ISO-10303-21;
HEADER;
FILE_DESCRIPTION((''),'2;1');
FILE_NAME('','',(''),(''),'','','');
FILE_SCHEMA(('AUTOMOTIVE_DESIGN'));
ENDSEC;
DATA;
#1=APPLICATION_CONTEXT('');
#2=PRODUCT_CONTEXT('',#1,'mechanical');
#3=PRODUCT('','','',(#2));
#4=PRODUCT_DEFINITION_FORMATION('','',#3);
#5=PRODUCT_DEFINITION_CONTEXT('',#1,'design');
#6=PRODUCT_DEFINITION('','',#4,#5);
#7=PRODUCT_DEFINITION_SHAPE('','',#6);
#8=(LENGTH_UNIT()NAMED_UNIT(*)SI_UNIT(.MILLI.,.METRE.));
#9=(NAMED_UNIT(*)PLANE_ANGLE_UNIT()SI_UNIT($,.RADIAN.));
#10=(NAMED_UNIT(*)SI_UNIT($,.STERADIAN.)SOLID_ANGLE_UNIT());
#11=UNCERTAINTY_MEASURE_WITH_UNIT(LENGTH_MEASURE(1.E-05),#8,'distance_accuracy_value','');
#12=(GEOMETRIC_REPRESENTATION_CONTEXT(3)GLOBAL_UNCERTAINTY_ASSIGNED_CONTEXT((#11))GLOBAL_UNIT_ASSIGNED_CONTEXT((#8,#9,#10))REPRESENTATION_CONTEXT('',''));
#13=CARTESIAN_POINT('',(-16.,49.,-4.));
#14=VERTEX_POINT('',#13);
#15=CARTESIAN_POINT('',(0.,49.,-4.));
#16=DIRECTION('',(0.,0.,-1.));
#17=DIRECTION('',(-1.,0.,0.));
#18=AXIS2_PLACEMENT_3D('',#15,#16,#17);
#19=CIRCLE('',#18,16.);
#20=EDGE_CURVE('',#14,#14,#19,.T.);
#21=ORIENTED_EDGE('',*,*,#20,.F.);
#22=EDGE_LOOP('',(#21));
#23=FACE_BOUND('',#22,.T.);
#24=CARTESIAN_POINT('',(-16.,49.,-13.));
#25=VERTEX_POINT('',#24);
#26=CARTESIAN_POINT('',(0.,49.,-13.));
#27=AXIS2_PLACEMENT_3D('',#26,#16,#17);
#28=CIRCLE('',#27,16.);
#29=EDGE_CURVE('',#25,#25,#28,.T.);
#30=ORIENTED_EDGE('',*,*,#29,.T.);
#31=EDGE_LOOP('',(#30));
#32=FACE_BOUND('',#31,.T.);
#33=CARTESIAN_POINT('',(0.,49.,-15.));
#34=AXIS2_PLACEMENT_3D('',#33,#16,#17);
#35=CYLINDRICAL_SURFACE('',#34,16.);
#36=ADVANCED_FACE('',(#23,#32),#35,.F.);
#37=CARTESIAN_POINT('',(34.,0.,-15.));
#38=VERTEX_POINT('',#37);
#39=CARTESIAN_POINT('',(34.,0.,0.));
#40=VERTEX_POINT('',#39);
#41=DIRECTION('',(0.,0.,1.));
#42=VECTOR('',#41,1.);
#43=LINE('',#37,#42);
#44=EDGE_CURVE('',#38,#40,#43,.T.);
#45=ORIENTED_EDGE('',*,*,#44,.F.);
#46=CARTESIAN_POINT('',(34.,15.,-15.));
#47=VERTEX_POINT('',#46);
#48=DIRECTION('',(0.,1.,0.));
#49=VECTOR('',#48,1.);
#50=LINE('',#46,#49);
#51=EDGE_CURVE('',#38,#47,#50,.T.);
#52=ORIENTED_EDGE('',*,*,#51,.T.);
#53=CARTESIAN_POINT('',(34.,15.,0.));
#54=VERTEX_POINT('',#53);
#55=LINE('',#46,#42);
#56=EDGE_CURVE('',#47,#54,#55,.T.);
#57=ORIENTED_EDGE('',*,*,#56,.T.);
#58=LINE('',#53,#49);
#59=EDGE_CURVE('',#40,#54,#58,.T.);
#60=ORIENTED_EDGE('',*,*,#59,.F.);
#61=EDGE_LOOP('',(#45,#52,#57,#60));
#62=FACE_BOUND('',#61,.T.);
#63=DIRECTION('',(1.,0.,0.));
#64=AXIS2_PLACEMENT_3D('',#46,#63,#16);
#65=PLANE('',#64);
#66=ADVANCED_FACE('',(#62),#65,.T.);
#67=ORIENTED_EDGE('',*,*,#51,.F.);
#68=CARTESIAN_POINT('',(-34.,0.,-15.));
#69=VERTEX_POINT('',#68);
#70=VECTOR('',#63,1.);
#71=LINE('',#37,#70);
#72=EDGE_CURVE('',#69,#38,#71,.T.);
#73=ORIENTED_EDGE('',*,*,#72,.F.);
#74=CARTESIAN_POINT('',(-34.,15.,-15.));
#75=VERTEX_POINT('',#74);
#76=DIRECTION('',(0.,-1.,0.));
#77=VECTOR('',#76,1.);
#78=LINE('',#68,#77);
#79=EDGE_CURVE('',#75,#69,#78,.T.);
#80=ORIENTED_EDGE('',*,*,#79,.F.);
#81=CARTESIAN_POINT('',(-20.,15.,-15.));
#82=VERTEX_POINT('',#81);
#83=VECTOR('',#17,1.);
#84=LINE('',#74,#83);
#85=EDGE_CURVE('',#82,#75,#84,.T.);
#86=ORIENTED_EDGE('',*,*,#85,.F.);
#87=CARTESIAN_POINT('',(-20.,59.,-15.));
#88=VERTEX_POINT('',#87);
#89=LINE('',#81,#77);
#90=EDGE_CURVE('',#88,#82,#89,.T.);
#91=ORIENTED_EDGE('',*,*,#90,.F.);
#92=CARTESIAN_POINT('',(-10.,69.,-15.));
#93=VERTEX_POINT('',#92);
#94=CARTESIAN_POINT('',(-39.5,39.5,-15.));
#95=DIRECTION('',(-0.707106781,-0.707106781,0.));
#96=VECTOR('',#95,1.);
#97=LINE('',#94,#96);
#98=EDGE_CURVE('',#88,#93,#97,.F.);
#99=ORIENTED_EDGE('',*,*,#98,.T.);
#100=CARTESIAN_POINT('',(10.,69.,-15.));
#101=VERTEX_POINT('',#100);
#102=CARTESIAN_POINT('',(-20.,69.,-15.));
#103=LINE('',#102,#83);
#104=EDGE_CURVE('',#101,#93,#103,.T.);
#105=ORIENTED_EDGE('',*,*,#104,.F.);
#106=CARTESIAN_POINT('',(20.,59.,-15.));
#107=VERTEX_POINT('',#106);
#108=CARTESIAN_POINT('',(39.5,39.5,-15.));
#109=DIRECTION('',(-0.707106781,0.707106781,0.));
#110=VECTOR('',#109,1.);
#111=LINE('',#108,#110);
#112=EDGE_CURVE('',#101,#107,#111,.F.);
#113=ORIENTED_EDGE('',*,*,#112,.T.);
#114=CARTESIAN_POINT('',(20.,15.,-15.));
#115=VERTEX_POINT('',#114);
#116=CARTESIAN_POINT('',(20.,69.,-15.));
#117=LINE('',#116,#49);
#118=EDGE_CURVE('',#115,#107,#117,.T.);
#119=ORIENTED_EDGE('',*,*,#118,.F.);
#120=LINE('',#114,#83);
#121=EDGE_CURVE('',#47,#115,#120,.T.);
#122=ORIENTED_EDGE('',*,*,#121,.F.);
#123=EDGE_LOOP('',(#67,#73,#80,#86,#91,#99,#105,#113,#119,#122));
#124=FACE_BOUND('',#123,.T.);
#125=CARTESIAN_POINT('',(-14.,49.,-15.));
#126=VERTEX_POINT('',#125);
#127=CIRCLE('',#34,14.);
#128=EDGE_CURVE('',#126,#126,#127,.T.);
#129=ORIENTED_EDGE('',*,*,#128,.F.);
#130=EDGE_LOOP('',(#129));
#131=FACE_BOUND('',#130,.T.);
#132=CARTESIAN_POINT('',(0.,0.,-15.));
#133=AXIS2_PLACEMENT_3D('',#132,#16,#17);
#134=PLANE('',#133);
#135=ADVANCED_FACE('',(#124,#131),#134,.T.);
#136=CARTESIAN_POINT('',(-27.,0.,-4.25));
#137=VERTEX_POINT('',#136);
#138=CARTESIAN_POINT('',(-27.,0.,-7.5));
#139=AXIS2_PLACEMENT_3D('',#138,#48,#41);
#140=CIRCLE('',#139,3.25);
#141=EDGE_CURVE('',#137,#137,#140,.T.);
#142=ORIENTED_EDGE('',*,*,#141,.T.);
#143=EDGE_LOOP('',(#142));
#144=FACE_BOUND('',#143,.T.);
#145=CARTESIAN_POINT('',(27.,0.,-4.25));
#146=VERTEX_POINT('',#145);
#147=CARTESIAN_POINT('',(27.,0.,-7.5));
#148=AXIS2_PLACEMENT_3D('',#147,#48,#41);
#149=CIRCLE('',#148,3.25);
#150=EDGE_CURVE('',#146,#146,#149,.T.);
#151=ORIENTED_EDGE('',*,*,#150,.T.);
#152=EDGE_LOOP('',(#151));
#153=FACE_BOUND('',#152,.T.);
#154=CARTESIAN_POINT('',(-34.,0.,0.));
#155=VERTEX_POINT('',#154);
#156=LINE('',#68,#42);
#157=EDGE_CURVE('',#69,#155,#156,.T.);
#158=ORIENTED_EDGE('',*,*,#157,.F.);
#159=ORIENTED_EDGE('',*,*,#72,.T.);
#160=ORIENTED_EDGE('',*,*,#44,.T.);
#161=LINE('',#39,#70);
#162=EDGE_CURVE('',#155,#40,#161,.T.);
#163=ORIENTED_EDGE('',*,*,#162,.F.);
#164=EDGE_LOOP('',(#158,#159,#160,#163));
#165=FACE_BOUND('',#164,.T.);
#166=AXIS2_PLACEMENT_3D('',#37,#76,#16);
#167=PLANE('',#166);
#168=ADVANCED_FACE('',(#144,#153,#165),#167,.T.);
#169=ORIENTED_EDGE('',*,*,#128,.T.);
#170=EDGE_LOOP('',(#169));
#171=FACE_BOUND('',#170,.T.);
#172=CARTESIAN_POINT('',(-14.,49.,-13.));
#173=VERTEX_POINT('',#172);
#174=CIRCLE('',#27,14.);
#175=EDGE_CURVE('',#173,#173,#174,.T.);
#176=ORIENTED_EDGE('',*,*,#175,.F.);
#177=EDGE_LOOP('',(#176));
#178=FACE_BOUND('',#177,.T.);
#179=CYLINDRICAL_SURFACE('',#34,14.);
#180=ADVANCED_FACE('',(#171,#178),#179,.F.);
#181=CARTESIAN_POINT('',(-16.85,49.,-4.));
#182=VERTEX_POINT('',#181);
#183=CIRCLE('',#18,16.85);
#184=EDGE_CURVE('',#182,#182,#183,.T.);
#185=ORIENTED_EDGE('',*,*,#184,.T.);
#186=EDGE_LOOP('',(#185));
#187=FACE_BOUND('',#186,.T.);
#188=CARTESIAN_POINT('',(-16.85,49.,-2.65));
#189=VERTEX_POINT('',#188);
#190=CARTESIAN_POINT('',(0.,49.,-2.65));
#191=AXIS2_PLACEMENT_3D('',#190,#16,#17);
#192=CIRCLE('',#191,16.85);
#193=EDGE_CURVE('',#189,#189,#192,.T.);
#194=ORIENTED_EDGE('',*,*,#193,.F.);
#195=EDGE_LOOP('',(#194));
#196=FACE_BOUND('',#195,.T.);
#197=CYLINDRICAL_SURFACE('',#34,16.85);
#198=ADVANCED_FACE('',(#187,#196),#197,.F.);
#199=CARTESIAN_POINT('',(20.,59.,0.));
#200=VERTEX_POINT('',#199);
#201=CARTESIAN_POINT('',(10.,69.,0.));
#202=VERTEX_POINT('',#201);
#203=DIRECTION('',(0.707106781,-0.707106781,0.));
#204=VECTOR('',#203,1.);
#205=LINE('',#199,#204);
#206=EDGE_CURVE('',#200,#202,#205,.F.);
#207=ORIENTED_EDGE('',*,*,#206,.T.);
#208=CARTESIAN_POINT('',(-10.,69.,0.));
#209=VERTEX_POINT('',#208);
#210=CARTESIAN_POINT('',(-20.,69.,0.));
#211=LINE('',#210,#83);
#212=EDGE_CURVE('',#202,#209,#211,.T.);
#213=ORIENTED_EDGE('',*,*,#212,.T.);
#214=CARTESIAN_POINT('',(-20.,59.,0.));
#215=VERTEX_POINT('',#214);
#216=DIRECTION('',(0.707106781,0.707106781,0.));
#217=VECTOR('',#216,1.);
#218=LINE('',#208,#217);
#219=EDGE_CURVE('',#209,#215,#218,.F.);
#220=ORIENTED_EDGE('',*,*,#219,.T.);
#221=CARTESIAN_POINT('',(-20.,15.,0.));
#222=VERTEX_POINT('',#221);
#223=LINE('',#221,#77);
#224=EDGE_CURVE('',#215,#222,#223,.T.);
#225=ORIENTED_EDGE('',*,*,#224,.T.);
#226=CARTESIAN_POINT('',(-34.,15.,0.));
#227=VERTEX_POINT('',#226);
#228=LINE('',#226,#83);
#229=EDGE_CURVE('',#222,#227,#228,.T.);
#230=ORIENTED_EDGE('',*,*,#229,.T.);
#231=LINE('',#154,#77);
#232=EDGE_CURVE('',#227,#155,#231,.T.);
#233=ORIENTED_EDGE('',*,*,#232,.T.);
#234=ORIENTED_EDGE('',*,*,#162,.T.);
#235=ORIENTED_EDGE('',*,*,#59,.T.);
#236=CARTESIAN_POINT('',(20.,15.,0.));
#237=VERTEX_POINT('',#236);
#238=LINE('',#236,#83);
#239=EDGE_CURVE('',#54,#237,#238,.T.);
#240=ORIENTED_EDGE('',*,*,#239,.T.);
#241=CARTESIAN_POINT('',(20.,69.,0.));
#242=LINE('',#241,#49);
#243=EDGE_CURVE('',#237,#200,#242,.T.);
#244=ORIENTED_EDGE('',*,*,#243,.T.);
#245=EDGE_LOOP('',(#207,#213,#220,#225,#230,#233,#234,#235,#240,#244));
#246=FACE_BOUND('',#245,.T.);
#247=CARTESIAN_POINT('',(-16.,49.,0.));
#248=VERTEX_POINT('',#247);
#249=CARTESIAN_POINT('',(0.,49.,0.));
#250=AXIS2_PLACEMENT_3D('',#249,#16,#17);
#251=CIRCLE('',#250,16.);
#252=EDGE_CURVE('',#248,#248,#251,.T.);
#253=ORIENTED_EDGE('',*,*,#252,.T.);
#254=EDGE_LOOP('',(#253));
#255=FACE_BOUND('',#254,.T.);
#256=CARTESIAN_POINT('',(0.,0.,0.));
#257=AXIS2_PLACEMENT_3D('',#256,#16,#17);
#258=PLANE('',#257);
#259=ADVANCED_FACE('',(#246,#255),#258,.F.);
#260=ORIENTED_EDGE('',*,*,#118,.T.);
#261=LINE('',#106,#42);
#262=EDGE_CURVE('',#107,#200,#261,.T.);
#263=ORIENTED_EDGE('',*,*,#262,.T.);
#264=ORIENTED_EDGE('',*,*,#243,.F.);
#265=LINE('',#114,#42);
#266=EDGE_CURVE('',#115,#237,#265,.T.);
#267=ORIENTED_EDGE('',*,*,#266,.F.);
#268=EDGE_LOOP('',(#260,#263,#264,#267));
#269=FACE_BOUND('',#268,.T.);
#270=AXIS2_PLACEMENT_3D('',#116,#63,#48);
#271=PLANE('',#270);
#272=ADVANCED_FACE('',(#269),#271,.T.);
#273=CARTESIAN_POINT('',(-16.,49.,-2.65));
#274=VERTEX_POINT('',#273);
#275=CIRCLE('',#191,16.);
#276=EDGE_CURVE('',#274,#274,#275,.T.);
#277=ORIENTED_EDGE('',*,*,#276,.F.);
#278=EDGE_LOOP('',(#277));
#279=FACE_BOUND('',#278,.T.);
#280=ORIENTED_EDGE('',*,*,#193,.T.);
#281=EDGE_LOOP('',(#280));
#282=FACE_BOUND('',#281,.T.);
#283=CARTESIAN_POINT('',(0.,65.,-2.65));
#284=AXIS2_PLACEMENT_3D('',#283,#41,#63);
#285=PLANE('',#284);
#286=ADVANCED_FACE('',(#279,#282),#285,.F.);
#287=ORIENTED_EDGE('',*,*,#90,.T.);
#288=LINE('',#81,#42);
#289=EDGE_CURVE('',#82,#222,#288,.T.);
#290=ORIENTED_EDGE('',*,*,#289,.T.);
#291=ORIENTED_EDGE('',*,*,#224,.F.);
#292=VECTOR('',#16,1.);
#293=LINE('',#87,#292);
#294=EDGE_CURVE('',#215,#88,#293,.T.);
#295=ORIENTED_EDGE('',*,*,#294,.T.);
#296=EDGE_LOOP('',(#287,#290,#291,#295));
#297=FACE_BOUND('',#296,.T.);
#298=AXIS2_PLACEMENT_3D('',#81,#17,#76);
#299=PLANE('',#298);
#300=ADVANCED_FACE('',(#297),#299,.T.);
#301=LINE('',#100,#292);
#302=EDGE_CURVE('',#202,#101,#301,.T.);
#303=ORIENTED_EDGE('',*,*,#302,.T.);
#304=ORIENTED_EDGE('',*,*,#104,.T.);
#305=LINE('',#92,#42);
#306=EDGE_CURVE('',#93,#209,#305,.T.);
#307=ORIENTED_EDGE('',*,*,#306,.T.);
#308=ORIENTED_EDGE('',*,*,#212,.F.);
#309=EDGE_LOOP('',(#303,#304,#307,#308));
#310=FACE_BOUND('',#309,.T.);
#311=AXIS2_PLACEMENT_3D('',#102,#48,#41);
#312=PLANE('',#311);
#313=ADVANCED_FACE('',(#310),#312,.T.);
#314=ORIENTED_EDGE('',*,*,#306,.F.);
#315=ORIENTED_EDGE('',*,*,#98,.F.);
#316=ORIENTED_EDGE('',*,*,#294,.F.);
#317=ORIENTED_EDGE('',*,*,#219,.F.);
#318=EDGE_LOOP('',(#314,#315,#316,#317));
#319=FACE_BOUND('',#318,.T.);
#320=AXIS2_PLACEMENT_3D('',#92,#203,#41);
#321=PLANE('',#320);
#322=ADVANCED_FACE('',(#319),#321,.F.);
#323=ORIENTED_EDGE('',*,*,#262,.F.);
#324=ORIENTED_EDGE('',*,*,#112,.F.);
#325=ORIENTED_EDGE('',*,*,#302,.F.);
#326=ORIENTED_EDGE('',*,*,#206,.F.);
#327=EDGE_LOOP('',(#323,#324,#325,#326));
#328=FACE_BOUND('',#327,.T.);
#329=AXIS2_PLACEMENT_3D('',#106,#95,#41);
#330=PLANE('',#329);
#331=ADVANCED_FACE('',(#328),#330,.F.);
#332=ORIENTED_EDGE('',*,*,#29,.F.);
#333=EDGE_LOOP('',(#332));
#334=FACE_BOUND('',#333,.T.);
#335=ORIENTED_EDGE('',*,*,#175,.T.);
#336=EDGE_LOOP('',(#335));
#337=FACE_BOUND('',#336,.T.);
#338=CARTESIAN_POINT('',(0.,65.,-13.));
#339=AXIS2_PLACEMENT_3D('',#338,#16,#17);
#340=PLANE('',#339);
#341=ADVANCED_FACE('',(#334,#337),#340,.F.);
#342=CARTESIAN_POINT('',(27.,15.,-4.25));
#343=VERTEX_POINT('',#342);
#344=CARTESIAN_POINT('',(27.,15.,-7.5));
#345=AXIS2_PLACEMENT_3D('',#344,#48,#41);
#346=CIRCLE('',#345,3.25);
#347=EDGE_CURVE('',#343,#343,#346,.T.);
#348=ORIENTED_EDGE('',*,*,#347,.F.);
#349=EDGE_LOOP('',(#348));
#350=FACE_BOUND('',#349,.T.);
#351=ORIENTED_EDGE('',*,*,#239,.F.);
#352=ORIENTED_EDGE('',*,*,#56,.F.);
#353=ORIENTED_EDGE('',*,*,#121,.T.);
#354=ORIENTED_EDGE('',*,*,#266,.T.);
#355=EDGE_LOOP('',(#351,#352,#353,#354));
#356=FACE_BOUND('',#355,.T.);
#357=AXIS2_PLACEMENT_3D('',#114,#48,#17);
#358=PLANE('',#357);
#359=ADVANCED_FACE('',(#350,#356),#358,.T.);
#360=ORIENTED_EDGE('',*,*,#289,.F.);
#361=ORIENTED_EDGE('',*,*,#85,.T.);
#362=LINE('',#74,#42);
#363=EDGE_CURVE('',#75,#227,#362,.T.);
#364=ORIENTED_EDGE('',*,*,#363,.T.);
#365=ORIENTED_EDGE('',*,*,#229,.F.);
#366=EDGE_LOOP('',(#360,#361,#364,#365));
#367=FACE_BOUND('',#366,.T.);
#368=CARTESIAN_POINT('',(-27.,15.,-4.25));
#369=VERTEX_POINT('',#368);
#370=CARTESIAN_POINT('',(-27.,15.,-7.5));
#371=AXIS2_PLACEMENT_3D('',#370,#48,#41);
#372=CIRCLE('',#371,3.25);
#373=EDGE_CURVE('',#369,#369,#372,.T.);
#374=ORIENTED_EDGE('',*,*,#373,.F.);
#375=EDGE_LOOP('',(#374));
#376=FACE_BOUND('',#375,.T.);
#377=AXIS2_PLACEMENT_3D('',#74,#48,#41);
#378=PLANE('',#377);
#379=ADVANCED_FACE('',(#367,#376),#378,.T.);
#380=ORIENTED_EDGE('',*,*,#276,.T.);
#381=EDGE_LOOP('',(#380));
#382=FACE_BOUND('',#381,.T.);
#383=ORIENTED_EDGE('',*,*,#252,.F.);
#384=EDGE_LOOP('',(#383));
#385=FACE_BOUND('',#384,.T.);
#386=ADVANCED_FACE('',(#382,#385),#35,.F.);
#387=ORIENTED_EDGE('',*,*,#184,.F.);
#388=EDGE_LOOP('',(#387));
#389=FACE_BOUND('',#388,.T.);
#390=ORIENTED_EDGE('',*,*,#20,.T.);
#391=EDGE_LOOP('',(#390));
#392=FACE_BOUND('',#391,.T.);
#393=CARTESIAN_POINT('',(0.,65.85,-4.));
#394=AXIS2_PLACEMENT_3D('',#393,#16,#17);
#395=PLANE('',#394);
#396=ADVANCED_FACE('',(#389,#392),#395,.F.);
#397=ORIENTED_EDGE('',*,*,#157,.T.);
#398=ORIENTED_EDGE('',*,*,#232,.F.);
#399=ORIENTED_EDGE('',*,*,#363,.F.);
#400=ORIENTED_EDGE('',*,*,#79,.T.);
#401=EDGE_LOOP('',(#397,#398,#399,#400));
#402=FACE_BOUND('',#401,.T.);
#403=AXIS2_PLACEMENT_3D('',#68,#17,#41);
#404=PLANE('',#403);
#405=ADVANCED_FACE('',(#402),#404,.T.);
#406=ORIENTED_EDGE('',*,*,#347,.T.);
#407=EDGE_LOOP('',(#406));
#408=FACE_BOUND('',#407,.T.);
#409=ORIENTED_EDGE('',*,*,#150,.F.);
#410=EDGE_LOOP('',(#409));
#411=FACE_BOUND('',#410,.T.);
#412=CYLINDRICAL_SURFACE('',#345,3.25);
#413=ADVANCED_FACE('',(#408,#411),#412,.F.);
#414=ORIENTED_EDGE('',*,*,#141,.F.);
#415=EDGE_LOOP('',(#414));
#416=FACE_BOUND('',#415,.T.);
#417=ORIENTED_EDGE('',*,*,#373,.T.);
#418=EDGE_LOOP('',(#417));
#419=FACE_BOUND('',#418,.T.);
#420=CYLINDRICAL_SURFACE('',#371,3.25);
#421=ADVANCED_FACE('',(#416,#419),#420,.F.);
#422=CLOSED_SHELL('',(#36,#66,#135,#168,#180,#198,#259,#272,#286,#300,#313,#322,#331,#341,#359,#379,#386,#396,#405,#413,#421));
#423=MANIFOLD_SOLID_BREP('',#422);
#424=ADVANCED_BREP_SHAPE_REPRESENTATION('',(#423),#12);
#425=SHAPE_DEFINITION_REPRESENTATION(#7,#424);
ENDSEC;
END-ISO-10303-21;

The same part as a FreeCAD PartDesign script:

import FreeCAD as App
import Part
import Sketcher
from FreeCAD import Vector
Q = App.Units.Quantity


def edges_at(feature, points):
    """Names of the edges that pass closest to the given points."""
    edges = feature.Shape.Edges
    near = lambda p: min(range(len(edges)), key=lambda i: edges[i].distToShape(Part.Vertex(*p))[0])
    return sorted({f"Edge{near(p) + 1}" for p in points})


def add_polygon(sketch, points):
    """Adds a closed chain of lines whose ends are joined by coincident constraints."""
    first, n = sketch.GeometryCount, len(points)
    for a, b in zip(points, points[1:] + points[:1]):
        sketch.addGeometry(Part.LineSegment(App.Vector(*a, 0), App.Vector(*b, 0)), False)
    for i in range(n):
        sketch.addConstraint(Sketcher.Constraint("Coincident", first + i, 2, first + (i + 1) % n, 1))

doc = App.newDocument("Part")
body = doc.addObject("PartDesign::Body", "Body")

# Sketch on XY plane
sketch1 = body.newObject("Sketcher::SketchObject", "Sketch")
sketch1.AttachmentSupport = (doc.getObject("XY_Plane"), [""])
sketch1.MapMode = "FlatFace"
add_polygon(sketch1, [(20, 69), (-20, 69), (-20, 15), (-34, 15), (-34, 0), (34, 0), (34, 15), (20, 15)])  # lines 0-7
sketch1.addConstraint(Sketcher.Constraint("Horizontal", 0))
sketch1.addConstraint(Sketcher.Constraint("Vertical", 1))
sketch1.addConstraint(Sketcher.Constraint("Horizontal", 2))
sketch1.addConstraint(Sketcher.Constraint("Vertical", 3))
sketch1.addConstraint(Sketcher.Constraint("Horizontal", 4))
sketch1.addConstraint(Sketcher.Constraint("Vertical", 5))
sketch1.addConstraint(Sketcher.Constraint("Horizontal", 6))
sketch1.addConstraint(Sketcher.Constraint("Vertical", 7))
sketch1.addConstraint(Sketcher.Constraint("Symmetric", 3, 2, 4, 2, -1, 1))
sketch1.addConstraint(Sketcher.Constraint("Symmetric", 1, 2, 6, 2, -2))
sketch1.addConstraint(Sketcher.Constraint("DistanceX", 0, 2, 0, 1, Q("40 mm")))
sketch1.addConstraint(Sketcher.Constraint("DistanceX", 2, 2, 2, 1, Q("14 mm")))
sketch1.addConstraint(Sketcher.Constraint("DistanceY", 1, 2, 1, 1, Q("54 mm")))
sketch1.addConstraint(Sketcher.Constraint("DistanceY", 3, 2, 3, 1, Q("15 mm")))
pad1 = body.newObject("PartDesign::Pad", "Pad")
pad1.Profile = sketch1
pad1.Length = 15
pad1.Reversed = True

# Sketch on YZ plane
sketch2 = body.newObject("Sketcher::SketchObject", "Sketch001")
sketch2.AttachmentSupport = (doc.getObject("YZ_Plane"), [""])
sketch2.MapMode = "FlatFace"
add_polygon(sketch2, [(65.8, -2.6), (65, -2.6), (65, 0), (49, 0), (49, -15), (63, -15), (63, -13), (65, -13), (65, -4), (65.8, -4)])  # lines 0-9
sketch2.addGeometry(Part.LineSegment(Vector(49, -15, 0), Vector(49, 0, 0)), True)  # axis
sketch2.addConstraint(Sketcher.Constraint("Horizontal", 0))
sketch2.addConstraint(Sketcher.Constraint("Vertical", 1))
sketch2.addConstraint(Sketcher.Constraint("Horizontal", 2))
sketch2.addConstraint(Sketcher.Constraint("Vertical", 3))
sketch2.addConstraint(Sketcher.Constraint("Horizontal", 4))
sketch2.addConstraint(Sketcher.Constraint("Vertical", 5))
sketch2.addConstraint(Sketcher.Constraint("Horizontal", 6))
sketch2.addConstraint(Sketcher.Constraint("Vertical", 7))
sketch2.addConstraint(Sketcher.Constraint("Horizontal", 8))
sketch2.addConstraint(Sketcher.Constraint("Vertical", 9))
sketch2.addConstraint(Sketcher.Constraint("Vertical", 10))
sketch2.addConstraint(Sketcher.Constraint("Coincident", 10, 1, 3, 2))
sketch2.addConstraint(Sketcher.Constraint("PointOnObject", 1, 2, -1))
sketch2.addConstraint(Sketcher.Constraint("PointOnObject", 10, 2, -1))
sketch2.addConstraint(Sketcher.Constraint("Vertical", 1, 2, 6, 2))
sketch2.addConstraint(Sketcher.Constraint("Equal", 6, 5))
sketch2.addConstraint(Sketcher.Constraint("DistanceX", 2, 2, 2, 1, Q("16 mm")))
sketch2.addConstraint(Sketcher.Constraint("DistanceX", 4, 1, 4, 2, Q("14 mm")))
sketch2.addConstraint(Sketcher.Constraint("DistanceY", 3, 2, 3, 1, Q("15 mm")))
sketch2.addConstraint(Sketcher.Constraint("DistanceY", 7, 1, 7, 2, Q("9 mm")))
sketch2.addConstraint(Sketcher.Constraint("DistanceX", -1, 1, 0, 2, Q("65 mm")))
sketch2.addConstraint(Sketcher.Constraint("DistanceX", 0, 2, 0, 1, Q("0.85 mm")))
sketch2.addConstraint(Sketcher.Constraint("DistanceY", 1, 1, 1, 2, Q("2.65 mm")))
groove = body.newObject("PartDesign::Groove", "Groove")
groove.Profile = sketch2
groove.ReferenceAxis = (sketch2, ["Axis0"])
groove.Angle = 360

# Sketch on XZ plane
sketch3 = body.newObject("Sketcher::SketchObject", "Sketch002")
sketch3.AttachmentSupport = (doc.getObject("XZ_Plane"), [""])
sketch3.MapMode = "FlatFace"
sketch3.AttachmentOffset = App.Placement(Vector(0, 0, -15), App.Rotation())
sketch3.addGeometry(Part.Circle(Vector(-27, -7.5, 0), Vector(0, 0, 1), 3.2), False)
sketch3.addGeometry(Part.Circle(Vector(27, -7.5, 0), Vector(0, 0, 1), 3.2), False)
sketch3.addConstraint(Sketcher.Constraint("Equal", 0, 1))
sketch3.addConstraint(Sketcher.Constraint("Symmetric", 0, 3, 1, 3, -2))
sketch3.addConstraint(Sketcher.Constraint("Diameter", 0, Q("6.5 mm")))
sketch3.addConstraint(Sketcher.Constraint("DistanceX", 0, 3, -1, 1, Q("27 mm")))
sketch3.addConstraint(Sketcher.Constraint("DistanceY", 0, 3, -1, 1, Q("7.5 mm")))
doc.recompute()
hole = body.newObject("PartDesign::Hole", "Hole")
hole.Profile = sketch3
hole.ThreadType = "None"
hole.Diameter = 6.5
hole.DepthType = "ThroughAll"
hole.Reversed = True
doc.recompute()

chamfer = body.newObject("PartDesign::Chamfer", "Chamfer")
chamfer.Base = (hole, edges_at(hole, [(-20, 69, -7.5), (20, 69, -7.5)]))
chamfer.Size = 10

doc.recompute()
